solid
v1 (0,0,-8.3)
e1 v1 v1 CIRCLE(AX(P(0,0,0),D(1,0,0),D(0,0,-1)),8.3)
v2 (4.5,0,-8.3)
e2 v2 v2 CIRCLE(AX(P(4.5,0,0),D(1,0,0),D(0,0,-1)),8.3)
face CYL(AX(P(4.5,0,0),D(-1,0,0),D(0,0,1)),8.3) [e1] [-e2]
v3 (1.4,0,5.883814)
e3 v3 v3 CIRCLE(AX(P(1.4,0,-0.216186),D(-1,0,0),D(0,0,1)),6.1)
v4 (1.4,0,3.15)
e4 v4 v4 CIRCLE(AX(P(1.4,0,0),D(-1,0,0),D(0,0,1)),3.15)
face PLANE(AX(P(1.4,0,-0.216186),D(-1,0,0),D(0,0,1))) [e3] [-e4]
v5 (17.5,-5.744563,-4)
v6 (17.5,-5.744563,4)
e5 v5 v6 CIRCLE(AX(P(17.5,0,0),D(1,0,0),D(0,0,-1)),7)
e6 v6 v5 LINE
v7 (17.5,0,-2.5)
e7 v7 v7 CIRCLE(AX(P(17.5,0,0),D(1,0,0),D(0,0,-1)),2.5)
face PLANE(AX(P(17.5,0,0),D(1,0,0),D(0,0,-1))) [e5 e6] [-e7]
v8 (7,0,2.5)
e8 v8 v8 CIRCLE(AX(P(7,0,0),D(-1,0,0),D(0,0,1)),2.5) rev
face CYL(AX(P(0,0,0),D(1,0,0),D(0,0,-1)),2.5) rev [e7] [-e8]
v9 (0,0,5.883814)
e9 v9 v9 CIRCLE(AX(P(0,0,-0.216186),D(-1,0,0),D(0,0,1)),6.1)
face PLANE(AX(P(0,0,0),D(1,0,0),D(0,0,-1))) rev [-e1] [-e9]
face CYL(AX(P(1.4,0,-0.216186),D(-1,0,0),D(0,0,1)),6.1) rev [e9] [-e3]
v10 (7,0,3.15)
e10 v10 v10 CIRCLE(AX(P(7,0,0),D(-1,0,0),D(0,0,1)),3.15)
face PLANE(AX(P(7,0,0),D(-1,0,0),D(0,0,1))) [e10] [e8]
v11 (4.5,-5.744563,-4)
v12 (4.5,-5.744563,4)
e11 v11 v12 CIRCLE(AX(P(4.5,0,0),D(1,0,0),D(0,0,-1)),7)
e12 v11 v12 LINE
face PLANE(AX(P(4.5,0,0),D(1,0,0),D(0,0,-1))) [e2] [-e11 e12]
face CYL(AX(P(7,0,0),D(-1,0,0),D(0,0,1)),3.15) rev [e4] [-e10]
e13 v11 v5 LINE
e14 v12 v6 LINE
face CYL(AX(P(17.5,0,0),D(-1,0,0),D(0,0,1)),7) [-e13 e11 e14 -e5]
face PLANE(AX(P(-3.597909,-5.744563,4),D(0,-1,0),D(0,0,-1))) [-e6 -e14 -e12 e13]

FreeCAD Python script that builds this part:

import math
import FreeCAD as App
import Part
import Sketcher

doc = App.newDocument("Part")
params = doc.addObject("Spreadsheet::Sheet", "Params")
for row, (alias, value) in enumerate([
    ("sketch1_diameter", "16.6 mm"),
    ("pad1_length", "4.5 mm"),
    ("sketch2_diameter", "12.2 mm"),
    ("pocket1_length", "1.4 mm"),
    ("sketch3_diameter", "14 mm"),
    ("pad2_length", "13 mm"),
    ("sketch4_diameter", "5 mm"),
    ("sketch5_radius", "7 mm"),
    ("sketch5_height", "8 mm"),
    ("pocket3_length", "13 mm"),
    ("sketch6_diameter", "6.3 mm"),
    ("pocket4_length", "7 mm"),
], start=1):
    params.set(f"A{row}", alias)
    params.set(f"B{row}", "=" + value)
    params.setAlias(f"B{row}", alias)

body = doc.addObject("PartDesign::Body", "Body")

sketch1 = body.newObject("Sketcher::SketchObject", "Sketch")
sketch1.AttachmentSupport = (doc.getObject("YZ_Plane"), [""])
sketch1.MapMode = "FlatFace"
sketch1.addGeometry(Part.Circle(App.Vector(0, 0, 0), App.Vector(0, 0, 1), 8.3), False)
sketch1.addConstraint(Sketcher.Constraint("Coincident", 0, 3, -1, 1))
sketch1.addConstraint(Sketcher.Constraint("Diameter", 0, 16.6))
sketch1.setExpression("Constraints[1]", "Params.sketch1_diameter")
pad1 = body.newObject("PartDesign::Pad", "Pad")
pad1.Profile = sketch1
pad1.setExpression("Length", "Params.pad1_length")

sketch2 = body.newObject("Sketcher::SketchObject", "Sketch001")
sketch2.AttachmentSupport = (doc.getObject("YZ_Plane"), [""])
sketch2.MapMode = "FlatFace"
sketch2.addGeometry(Part.Circle(App.Vector(0, -0.216186, 0), App.Vector(0, 0, 1), 6.1), False)
sketch2.addConstraint(Sketcher.Constraint("PointOnObject", 0, 3, -2))
sketch2.addConstraint(Sketcher.Constraint("Diameter", 0, 12.2))
sketch2.addConstraint(Sketcher.Constraint("DistanceY", 0, 3, -1, 1, 0.216186))
sketch2.setExpression("Constraints[1]", "Params.sketch2_diameter")
pocket1 = body.newObject("PartDesign::Pocket", "Pocket")
pocket1.Profile = sketch2
pocket1.setExpression("Length", "Params.pocket1_length")
pocket1.Reversed = True

sketch3 = body.newObject("Sketcher::SketchObject", "Sketch002")
sketch3.AttachmentSupport = (doc.getObject("YZ_Plane"), [""])
sketch3.MapMode = "FlatFace"
sketch3.AttachmentOffset = App.Placement(App.Vector(0, 0, 4.5), App.Rotation())
sketch3.addGeometry(Part.Circle(App.Vector(0, 0, 0), App.Vector(0, 0, 1), 7), False)
sketch3.addConstraint(Sketcher.Constraint("Coincident", 0, 3, -1, 1))
sketch3.addConstraint(Sketcher.Constraint("Diameter", 0, 14.0))
sketch3.setExpression("Constraints[1]", "Params.sketch3_diameter")
pad2 = body.newObject("PartDesign::Pad", "Pad001")
pad2.Profile = sketch3
pad2.setExpression("Length", "Params.pad2_length")

sketch4 = body.newObject("Sketcher::SketchObject", "Sketch003")
sketch4.AttachmentSupport = (doc.getObject("YZ_Plane"), [""])
sketch4.MapMode = "FlatFace"
sketch4.AttachmentOffset = App.Placement(App.Vector(0, 0, 17.5), App.Rotation())
sketch4.addGeometry(Part.Circle(App.Vector(0, 0, 0), App.Vector(0, 0, 1), 2.5), False)
sketch4.addConstraint(Sketcher.Constraint("Coincident", 0, 3, -1, 1))
sketch4.addConstraint(Sketcher.Constraint("Diameter", 0, 5.0))
sketch4.setExpression("Constraints[1]", "Params.sketch4_diameter")
pocket2 = body.newObject("PartDesign::Pocket", "Pocket001")
pocket2.Profile = sketch4
pocket2.Type = "ThroughAll"

sketch5 = body.newObject("Sketcher::SketchObject", "Sketch004")
sketch5.AttachmentSupport = (doc.getObject("YZ_Plane"), [""])
sketch5.MapMode = "FlatFace"
sketch5.AttachmentOffset = App.Placement(App.Vector(0, 0, 4.5), App.Rotation())
sketch5.addGeometry(Part.LineSegment(App.Vector(-5.744563, -4, 0), App.Vector(-5.744563, 4, 0)), False)
sketch5.addGeometry(Part.ArcOfCircle(Part.Circle(App.Vector(0, 0, 0), App.Vector(0, 0, 1), 7), math.radians(145.150095), math.radians(214.849905)), False)
sketch5.addConstraint(Sketcher.Constraint("Coincident", 0, 1, 1, 2))
sketch5.addConstraint(Sketcher.Constraint("Coincident", 1, 1, 0, 2))
sketch5.addConstraint(Sketcher.Constraint("Vertical", 0))
sketch5.addConstraint(Sketcher.Constraint("Coincident", 1, 3, -1, 1))
sketch5.addConstraint(Sketcher.Constraint("Radius", 1, 7.0))
sketch5.addConstraint(Sketcher.Constraint("DistanceY", 0, 1, 0, 2, 8.0))
sketch5.setExpression("Constraints[4]", "Params.sketch5_radius")
sketch5.setExpression("Constraints[5]", "Params.sketch5_height")
pocket3 = body.newObject("PartDesign::Pocket", "Pocket002")
pocket3.Profile = sketch5
pocket3.setExpression("Length", "Params.pocket3_length")
pocket3.Reversed = True

sketch6 = body.newObject("Sketcher::SketchObject", "Sketch005")
sketch6.AttachmentSupport = (doc.getObject("YZ_Plane"), [""])
sketch6.MapMode = "FlatFace"
sketch6.addGeometry(Part.Circle(App.Vector(0, 0, 0), App.Vector(0, 0, 1), 3.15), False)
sketch6.addConstraint(Sketcher.Constraint("Coincident", 0, 3, -1, 1))
sketch6.addConstraint(Sketcher.Constraint("Diameter", 0, 6.3))
sketch6.setExpression("Constraints[1]", "Params.sketch6_diameter")
pocket4 = body.newObject("PartDesign::Pocket", "Pocket003")
pocket4.Profile = sketch6
pocket4.setExpression("Length", "Params.pocket4_length")
pocket4.Reversed = True

doc.recompute()
